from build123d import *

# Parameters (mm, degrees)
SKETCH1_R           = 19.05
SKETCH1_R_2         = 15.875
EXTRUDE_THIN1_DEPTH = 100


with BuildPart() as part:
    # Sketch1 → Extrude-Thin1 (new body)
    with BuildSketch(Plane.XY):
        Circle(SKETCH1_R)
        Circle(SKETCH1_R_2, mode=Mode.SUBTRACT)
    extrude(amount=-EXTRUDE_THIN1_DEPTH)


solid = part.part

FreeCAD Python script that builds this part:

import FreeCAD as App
import Part
import Sketcher
Q = App.Units.Quantity

doc = App.newDocument("Part")
body = doc.addObject("PartDesign::Body", "Body")

sketch1 = body.newObject("Sketcher::SketchObject", "Sketch")
sketch1.AttachmentSupport = (doc.getObject("XY_Plane"), [""])
sketch1.MapMode = "FlatFace"
sketch1.addGeometry([
    Part.Circle(App.Vector(0, 0, 0), App.Vector(0, 0, 1), 19.05),
    Part.Circle(App.Vector(0, 0, 0), App.Vector(0, 0, 1), 15.875),
], False)
sketch1.addConstraint([
    Sketcher.Constraint("Coincident", 0, 3, -1, 1),
    Sketcher.Constraint("Coincident", 1, 3, -1, 1),
    Sketcher.Constraint("Diameter", 0, Q("1.5 in")),
    Sketcher.Constraint("Diameter", 1, Q("1.25 in")),
])
pad1 = body.newObject("PartDesign::Pad", "Pad")
pad1.Profile = sketch1
pad1.Length = 100
pad1.Reversed = True

doc.recompute()
